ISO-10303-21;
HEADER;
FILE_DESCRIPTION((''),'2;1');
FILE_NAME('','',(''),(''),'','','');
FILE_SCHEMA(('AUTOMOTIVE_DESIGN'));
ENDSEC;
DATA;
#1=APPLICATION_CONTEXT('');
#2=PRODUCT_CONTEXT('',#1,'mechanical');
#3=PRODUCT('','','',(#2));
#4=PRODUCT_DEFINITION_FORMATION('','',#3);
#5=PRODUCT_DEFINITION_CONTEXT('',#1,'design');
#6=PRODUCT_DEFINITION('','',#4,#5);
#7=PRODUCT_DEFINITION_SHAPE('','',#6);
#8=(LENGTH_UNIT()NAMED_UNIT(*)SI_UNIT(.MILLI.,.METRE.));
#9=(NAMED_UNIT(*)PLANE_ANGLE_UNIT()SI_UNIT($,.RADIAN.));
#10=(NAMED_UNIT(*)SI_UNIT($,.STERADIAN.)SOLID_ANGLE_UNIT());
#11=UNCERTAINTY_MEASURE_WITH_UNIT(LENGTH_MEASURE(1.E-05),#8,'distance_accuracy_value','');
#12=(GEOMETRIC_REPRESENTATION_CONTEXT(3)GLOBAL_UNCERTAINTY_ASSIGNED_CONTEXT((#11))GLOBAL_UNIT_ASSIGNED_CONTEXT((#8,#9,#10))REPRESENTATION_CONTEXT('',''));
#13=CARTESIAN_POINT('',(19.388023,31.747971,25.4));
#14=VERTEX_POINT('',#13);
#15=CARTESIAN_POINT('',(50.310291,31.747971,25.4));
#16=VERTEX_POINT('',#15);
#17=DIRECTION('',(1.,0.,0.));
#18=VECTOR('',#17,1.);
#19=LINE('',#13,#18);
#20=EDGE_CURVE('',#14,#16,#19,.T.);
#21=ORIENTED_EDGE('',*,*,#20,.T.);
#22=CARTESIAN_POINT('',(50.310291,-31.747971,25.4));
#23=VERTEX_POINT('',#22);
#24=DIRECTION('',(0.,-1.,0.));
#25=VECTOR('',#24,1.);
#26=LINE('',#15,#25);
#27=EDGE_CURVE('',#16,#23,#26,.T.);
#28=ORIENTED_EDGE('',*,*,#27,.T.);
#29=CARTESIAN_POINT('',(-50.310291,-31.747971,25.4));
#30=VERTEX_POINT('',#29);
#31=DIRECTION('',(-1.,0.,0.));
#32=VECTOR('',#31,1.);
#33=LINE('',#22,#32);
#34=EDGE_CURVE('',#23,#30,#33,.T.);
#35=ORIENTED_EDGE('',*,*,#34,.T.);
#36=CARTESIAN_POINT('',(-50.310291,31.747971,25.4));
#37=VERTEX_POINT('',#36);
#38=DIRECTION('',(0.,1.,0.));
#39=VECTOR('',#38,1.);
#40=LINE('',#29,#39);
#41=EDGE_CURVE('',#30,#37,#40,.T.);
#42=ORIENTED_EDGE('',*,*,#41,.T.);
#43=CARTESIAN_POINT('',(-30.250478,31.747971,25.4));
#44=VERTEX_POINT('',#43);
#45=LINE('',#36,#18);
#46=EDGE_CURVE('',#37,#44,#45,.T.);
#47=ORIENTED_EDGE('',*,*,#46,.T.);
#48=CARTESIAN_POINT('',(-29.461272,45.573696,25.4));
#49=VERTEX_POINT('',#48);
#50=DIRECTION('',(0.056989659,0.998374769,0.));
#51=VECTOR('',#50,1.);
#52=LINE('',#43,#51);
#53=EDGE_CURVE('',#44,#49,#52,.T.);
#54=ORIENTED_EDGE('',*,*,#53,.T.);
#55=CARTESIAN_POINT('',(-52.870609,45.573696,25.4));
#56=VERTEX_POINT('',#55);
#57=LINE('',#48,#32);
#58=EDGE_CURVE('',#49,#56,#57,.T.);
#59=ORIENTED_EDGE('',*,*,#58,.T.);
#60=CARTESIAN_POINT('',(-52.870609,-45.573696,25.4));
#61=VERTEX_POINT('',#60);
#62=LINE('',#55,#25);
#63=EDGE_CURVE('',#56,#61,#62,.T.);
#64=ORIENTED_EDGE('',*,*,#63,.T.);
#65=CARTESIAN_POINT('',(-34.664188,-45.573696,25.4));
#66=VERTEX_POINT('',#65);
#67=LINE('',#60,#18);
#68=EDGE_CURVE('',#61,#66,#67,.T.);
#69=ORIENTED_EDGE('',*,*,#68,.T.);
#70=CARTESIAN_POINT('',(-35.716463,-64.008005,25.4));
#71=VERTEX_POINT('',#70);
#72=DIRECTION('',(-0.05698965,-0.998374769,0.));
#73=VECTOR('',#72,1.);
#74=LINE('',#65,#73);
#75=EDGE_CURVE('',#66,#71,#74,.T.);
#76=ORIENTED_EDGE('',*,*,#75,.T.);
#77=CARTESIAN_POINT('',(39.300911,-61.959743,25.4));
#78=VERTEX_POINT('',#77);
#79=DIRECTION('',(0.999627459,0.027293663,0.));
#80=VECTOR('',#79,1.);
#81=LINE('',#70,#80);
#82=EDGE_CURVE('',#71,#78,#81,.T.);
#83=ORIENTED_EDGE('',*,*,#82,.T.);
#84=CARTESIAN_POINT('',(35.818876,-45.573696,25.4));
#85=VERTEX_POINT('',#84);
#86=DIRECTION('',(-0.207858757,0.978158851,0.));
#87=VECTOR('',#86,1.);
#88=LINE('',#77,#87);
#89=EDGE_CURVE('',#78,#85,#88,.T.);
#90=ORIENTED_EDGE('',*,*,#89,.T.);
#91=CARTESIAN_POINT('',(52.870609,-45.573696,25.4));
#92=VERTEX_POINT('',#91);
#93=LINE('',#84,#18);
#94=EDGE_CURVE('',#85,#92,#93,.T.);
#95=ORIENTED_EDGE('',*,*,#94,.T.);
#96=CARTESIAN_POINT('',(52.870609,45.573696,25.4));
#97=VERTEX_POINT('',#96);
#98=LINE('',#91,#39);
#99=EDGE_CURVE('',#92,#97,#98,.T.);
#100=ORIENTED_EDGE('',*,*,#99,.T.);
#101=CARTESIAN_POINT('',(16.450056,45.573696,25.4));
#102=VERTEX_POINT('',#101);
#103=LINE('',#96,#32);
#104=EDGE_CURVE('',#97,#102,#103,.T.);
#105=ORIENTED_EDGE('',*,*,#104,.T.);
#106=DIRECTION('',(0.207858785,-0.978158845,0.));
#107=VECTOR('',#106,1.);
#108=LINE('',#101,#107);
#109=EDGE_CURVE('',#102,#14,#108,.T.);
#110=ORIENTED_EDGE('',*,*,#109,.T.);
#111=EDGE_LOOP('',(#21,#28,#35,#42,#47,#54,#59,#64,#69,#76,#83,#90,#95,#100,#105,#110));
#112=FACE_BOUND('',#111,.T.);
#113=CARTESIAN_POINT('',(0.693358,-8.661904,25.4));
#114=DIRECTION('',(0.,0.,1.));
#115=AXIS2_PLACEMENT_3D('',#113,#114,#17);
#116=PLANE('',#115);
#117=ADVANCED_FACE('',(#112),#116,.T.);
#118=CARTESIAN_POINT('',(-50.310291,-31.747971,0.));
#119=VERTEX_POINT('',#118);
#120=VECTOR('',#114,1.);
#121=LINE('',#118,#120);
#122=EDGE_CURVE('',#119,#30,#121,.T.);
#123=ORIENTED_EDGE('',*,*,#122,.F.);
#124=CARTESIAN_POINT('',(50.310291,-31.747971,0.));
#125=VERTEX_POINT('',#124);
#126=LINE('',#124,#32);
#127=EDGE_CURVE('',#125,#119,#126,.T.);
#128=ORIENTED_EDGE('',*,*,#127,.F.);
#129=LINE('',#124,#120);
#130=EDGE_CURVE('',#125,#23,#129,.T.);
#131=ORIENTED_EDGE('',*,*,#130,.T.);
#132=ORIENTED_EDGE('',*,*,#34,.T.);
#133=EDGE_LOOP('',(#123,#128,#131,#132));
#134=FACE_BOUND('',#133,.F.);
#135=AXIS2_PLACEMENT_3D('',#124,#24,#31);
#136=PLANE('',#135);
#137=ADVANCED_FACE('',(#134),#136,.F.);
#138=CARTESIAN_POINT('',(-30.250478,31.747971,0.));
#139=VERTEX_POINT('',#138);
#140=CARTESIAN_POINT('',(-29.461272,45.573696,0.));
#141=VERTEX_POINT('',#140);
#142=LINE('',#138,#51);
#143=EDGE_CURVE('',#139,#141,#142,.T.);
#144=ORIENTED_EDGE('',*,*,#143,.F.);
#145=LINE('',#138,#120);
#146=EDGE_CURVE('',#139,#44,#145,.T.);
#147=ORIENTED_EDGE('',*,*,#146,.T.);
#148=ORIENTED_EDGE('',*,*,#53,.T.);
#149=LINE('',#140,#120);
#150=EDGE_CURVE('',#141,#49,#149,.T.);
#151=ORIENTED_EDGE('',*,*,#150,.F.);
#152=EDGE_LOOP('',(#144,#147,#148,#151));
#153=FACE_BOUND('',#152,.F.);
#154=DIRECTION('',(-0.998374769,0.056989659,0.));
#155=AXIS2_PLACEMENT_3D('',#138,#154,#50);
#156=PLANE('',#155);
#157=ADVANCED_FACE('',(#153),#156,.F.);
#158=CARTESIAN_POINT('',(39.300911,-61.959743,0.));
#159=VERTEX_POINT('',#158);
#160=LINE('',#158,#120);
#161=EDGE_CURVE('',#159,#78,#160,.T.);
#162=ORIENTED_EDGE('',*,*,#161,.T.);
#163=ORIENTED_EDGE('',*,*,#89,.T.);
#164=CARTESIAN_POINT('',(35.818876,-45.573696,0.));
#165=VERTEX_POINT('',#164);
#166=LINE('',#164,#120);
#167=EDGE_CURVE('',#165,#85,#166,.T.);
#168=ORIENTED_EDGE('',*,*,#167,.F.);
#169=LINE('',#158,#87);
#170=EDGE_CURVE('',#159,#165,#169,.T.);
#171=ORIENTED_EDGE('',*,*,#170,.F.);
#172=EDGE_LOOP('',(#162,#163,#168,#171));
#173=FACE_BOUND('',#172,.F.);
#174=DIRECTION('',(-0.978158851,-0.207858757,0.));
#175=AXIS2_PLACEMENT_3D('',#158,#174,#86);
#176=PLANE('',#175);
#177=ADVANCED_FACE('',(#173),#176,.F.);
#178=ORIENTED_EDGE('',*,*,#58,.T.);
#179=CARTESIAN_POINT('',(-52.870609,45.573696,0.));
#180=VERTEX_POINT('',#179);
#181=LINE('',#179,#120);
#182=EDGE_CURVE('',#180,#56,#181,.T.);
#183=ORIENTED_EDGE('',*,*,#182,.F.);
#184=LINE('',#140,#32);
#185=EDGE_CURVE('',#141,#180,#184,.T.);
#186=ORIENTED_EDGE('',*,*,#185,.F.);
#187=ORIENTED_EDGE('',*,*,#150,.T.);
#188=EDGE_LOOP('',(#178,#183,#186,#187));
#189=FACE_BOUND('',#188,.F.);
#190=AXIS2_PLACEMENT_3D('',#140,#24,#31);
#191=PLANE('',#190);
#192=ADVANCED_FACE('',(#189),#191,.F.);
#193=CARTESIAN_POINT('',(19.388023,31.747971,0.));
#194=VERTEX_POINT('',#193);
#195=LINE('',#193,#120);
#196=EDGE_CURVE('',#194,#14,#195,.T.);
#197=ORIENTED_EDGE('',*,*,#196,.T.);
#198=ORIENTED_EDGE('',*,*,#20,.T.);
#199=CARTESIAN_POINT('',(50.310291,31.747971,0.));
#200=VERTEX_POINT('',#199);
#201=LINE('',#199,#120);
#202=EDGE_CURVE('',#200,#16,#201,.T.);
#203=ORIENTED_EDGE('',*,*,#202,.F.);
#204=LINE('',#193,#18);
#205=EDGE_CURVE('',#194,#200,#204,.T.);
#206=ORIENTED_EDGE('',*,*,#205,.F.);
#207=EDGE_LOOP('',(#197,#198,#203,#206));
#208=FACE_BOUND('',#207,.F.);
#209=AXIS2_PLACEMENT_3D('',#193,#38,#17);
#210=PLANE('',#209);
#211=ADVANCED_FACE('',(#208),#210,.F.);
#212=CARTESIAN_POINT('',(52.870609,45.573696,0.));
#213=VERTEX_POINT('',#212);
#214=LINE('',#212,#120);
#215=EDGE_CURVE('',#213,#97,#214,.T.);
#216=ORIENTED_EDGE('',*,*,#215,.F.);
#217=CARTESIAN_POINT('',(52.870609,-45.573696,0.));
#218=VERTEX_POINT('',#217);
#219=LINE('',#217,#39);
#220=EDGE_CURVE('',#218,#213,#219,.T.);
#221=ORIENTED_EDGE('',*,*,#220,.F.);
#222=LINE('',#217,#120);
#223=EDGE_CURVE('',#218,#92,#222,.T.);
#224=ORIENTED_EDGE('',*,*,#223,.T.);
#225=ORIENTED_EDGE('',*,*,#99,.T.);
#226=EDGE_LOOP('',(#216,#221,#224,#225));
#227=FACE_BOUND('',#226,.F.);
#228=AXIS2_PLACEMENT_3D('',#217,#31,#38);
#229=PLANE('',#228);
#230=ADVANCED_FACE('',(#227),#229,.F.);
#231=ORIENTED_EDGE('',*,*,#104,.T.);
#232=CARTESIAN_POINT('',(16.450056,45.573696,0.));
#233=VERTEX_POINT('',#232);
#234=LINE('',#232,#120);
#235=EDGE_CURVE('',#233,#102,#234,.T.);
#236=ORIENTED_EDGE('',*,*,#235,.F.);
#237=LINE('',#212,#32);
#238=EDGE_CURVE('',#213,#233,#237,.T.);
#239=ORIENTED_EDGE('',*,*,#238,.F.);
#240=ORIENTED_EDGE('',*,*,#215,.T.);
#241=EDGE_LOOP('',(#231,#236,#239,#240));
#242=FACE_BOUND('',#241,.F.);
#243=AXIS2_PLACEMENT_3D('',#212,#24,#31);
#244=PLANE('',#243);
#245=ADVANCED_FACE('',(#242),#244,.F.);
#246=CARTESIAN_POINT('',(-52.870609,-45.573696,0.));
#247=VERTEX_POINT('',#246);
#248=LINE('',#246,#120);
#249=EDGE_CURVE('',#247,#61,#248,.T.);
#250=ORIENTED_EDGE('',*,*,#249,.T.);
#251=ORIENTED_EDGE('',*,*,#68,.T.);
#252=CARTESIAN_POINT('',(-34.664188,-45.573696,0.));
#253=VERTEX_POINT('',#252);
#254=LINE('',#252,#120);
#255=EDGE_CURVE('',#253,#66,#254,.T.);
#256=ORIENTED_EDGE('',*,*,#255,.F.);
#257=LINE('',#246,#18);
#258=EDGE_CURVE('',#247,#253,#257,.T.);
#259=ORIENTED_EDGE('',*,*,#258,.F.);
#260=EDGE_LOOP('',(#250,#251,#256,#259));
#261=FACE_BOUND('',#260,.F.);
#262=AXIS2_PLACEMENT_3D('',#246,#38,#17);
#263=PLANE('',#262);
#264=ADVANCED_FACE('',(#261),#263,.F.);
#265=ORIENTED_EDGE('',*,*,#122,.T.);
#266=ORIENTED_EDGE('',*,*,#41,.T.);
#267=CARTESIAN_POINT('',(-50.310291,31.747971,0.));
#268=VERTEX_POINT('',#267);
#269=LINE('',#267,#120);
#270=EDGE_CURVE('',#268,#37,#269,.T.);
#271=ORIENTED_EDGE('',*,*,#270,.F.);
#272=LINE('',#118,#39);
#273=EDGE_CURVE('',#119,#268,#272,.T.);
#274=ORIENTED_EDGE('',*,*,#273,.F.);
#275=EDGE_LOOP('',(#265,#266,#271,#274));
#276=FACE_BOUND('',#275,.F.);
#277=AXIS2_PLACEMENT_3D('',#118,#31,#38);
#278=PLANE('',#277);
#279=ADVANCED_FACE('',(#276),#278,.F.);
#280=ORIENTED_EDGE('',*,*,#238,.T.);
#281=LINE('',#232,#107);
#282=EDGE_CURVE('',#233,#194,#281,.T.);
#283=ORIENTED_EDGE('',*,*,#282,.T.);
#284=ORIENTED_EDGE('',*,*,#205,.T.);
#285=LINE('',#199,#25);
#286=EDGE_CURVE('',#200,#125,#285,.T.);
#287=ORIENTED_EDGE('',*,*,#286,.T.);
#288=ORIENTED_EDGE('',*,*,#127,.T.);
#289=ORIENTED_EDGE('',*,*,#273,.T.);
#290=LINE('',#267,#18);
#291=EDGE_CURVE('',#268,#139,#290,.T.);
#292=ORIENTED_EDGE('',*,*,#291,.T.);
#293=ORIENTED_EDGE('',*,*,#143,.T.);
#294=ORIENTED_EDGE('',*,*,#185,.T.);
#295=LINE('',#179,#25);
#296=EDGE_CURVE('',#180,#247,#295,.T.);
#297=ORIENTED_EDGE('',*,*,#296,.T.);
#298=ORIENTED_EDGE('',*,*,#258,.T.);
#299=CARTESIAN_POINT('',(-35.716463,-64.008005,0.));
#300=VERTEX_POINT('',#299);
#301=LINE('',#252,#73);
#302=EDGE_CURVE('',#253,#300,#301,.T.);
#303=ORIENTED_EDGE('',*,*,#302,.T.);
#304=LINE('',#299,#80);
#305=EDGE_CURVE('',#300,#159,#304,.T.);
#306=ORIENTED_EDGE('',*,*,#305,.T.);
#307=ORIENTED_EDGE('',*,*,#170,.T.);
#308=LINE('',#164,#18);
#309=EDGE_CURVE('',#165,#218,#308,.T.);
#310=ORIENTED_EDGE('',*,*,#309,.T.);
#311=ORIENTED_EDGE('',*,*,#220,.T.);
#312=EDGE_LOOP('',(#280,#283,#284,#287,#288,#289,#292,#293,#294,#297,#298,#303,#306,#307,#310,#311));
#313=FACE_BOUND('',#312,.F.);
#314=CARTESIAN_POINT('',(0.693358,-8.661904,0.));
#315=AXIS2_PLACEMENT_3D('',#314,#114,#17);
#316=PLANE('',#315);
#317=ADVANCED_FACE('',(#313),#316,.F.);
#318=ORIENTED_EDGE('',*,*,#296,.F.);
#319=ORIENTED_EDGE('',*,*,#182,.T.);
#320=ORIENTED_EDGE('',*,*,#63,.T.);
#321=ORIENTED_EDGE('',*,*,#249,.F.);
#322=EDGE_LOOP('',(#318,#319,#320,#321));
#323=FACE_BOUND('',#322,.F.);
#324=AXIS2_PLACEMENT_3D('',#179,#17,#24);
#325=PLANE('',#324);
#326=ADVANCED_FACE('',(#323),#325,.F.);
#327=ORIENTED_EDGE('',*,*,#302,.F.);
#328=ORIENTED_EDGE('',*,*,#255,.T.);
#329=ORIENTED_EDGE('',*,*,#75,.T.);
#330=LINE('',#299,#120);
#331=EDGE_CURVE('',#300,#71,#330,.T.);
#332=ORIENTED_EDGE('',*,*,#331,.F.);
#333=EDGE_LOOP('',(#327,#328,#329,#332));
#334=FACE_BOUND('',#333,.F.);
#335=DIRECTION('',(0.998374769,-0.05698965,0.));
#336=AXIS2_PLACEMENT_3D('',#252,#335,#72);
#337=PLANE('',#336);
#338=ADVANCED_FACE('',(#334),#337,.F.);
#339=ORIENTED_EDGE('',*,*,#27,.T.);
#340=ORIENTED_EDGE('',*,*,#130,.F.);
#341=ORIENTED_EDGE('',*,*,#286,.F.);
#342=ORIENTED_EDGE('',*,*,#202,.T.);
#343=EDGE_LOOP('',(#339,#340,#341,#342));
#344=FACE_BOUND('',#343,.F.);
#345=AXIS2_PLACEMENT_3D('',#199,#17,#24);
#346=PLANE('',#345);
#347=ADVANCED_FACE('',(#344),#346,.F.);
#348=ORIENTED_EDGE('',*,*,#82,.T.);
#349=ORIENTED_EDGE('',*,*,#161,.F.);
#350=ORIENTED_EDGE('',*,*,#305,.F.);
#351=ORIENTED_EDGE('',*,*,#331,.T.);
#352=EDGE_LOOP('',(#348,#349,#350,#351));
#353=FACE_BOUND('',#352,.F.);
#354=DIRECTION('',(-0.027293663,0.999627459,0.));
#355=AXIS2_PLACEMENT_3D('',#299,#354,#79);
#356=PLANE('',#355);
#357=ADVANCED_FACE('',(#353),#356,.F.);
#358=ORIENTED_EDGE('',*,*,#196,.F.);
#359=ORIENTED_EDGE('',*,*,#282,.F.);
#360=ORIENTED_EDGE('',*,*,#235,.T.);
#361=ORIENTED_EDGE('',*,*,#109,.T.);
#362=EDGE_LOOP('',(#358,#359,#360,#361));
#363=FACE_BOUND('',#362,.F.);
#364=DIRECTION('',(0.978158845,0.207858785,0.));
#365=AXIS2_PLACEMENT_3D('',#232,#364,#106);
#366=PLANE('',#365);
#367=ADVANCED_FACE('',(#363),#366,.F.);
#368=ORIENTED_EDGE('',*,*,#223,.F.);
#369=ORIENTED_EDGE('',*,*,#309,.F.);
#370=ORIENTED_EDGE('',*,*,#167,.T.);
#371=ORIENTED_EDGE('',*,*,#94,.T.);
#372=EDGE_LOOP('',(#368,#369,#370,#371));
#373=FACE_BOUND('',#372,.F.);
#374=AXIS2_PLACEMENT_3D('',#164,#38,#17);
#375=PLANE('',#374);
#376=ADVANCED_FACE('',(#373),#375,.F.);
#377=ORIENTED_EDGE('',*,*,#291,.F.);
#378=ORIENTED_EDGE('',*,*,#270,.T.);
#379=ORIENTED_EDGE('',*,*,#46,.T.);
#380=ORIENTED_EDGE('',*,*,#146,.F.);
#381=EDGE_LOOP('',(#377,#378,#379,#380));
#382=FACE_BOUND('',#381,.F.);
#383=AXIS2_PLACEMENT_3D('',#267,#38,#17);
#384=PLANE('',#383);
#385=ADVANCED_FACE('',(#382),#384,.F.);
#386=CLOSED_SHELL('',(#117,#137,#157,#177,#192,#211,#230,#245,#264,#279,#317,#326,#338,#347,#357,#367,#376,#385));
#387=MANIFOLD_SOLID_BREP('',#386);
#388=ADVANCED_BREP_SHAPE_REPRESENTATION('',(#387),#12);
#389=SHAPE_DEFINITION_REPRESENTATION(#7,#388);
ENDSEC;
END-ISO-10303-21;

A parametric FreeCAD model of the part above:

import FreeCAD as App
import Part
import Sketcher

V = App.Vector
Q = App.Units.Quantity


def add_polygon(sketch, points):
    """Adds a closed chain of lines whose ends are joined by coincident constraints."""
    first, n = sketch.GeometryCount, len(points)
    for a, b in zip(points, points[1:] + points[:1]):
        sketch.addGeometry(Part.LineSegment(App.Vector(*a, 0), App.Vector(*b, 0)), False)
    for i in range(n):
        sketch.addConstraint(Sketcher.Constraint("Coincident", first + i, 2, first + (i + 1) % n, 1))

doc = App.newDocument("Part")
body = doc.addObject("PartDesign::Body", "Body")

sketch1 = doc.addObject("Sketcher::SketchObject", "Sketch")
body.addObject(sketch1)
sketch1.AttachmentSupport = (doc.XY_Plane, [""])
sketch1.MapMode = "FlatFace"
add_polygon(sketch1, [(19, 32), (50, 32), (50, -32), (-50, -32), (-50, 32), (-30, 32), (-29, 46), (-53, 46), (-53, -46), (-35, -46), (-36, -64), (39, -62), (36, -46), (53, -46), (53, 46), (16, 46)])
sketch1.addConstraint([
    Sketcher.Constraint("Horizontal", 0),
    Sketcher.Constraint("Vertical", 1),
    Sketcher.Constraint("Horizontal", 2),
    Sketcher.Constraint("Vertical", 3),
    Sketcher.Constraint("Horizontal", 4),
    Sketcher.Constraint("Horizontal", 6),
    Sketcher.Constraint("Vertical", 7),
    Sketcher.Constraint("Horizontal", 8),
    Sketcher.Constraint("Horizontal", 12),
    Sketcher.Constraint("Vertical", 13),
    Sketcher.Constraint("Horizontal", 14),
    Sketcher.Constraint("Symmetric", 0, 2, 2, 2, -1, 1),
    Sketcher.Constraint("Symmetric", 6, 2, 12, 2, -1, 1),
    Sketcher.Constraint("Parallel", 5, 9),
    Sketcher.Constraint("Parallel", 11, 15),
    Sketcher.Constraint("Horizontal", 0, 2, 3, 2),
    Sketcher.Constraint("Horizontal", 8, 2, 11, 2),
    Sketcher.Constraint("Horizontal", 6, 2, 13, 2),
    Sketcher.Constraint("DistanceY", 9, 2, -1, 1, Q("2.5200002 in")),
    Sketcher.Constraint("DistanceX", 6, 2, 3, 2, Q("0.1007999 in")),
    Sketcher.Constraint("DistanceX", 7, 2, 10, 2, Q("3.6288 in")),
    Sketcher.Constraint("DistanceX", 2, 2, 2, 1, 100.620582),
    Sketcher.Constraint("DistanceX", 8, 1, 8, 2, 18.206421),
    Sketcher.Constraint("DistanceY", 7, 2, 7, 1, 91.147392),
    Sketcher.Constraint("DistanceX", 4, 2, 15, 2, 49.638501),
    Sketcher.Constraint("Distance", 5, 13.848232),
    Sketcher.Constraint("Distance", 10, 75.045331),
    Sketcher.Constraint("Distance", 11, 16.751928),
    Sketcher.Constraint("DistanceX", 0, 1, 0, 2, 30.922268),
    Sketcher.Constraint("DistanceX", 12, 1, 12, 2, 17.051733),
])
pad1 = doc.addObject("PartDesign::Pad", "Pad")
body.addObject(pad1)
pad1.Profile = sketch1
pad1.Length = Q("1 in")

doc.recompute()
